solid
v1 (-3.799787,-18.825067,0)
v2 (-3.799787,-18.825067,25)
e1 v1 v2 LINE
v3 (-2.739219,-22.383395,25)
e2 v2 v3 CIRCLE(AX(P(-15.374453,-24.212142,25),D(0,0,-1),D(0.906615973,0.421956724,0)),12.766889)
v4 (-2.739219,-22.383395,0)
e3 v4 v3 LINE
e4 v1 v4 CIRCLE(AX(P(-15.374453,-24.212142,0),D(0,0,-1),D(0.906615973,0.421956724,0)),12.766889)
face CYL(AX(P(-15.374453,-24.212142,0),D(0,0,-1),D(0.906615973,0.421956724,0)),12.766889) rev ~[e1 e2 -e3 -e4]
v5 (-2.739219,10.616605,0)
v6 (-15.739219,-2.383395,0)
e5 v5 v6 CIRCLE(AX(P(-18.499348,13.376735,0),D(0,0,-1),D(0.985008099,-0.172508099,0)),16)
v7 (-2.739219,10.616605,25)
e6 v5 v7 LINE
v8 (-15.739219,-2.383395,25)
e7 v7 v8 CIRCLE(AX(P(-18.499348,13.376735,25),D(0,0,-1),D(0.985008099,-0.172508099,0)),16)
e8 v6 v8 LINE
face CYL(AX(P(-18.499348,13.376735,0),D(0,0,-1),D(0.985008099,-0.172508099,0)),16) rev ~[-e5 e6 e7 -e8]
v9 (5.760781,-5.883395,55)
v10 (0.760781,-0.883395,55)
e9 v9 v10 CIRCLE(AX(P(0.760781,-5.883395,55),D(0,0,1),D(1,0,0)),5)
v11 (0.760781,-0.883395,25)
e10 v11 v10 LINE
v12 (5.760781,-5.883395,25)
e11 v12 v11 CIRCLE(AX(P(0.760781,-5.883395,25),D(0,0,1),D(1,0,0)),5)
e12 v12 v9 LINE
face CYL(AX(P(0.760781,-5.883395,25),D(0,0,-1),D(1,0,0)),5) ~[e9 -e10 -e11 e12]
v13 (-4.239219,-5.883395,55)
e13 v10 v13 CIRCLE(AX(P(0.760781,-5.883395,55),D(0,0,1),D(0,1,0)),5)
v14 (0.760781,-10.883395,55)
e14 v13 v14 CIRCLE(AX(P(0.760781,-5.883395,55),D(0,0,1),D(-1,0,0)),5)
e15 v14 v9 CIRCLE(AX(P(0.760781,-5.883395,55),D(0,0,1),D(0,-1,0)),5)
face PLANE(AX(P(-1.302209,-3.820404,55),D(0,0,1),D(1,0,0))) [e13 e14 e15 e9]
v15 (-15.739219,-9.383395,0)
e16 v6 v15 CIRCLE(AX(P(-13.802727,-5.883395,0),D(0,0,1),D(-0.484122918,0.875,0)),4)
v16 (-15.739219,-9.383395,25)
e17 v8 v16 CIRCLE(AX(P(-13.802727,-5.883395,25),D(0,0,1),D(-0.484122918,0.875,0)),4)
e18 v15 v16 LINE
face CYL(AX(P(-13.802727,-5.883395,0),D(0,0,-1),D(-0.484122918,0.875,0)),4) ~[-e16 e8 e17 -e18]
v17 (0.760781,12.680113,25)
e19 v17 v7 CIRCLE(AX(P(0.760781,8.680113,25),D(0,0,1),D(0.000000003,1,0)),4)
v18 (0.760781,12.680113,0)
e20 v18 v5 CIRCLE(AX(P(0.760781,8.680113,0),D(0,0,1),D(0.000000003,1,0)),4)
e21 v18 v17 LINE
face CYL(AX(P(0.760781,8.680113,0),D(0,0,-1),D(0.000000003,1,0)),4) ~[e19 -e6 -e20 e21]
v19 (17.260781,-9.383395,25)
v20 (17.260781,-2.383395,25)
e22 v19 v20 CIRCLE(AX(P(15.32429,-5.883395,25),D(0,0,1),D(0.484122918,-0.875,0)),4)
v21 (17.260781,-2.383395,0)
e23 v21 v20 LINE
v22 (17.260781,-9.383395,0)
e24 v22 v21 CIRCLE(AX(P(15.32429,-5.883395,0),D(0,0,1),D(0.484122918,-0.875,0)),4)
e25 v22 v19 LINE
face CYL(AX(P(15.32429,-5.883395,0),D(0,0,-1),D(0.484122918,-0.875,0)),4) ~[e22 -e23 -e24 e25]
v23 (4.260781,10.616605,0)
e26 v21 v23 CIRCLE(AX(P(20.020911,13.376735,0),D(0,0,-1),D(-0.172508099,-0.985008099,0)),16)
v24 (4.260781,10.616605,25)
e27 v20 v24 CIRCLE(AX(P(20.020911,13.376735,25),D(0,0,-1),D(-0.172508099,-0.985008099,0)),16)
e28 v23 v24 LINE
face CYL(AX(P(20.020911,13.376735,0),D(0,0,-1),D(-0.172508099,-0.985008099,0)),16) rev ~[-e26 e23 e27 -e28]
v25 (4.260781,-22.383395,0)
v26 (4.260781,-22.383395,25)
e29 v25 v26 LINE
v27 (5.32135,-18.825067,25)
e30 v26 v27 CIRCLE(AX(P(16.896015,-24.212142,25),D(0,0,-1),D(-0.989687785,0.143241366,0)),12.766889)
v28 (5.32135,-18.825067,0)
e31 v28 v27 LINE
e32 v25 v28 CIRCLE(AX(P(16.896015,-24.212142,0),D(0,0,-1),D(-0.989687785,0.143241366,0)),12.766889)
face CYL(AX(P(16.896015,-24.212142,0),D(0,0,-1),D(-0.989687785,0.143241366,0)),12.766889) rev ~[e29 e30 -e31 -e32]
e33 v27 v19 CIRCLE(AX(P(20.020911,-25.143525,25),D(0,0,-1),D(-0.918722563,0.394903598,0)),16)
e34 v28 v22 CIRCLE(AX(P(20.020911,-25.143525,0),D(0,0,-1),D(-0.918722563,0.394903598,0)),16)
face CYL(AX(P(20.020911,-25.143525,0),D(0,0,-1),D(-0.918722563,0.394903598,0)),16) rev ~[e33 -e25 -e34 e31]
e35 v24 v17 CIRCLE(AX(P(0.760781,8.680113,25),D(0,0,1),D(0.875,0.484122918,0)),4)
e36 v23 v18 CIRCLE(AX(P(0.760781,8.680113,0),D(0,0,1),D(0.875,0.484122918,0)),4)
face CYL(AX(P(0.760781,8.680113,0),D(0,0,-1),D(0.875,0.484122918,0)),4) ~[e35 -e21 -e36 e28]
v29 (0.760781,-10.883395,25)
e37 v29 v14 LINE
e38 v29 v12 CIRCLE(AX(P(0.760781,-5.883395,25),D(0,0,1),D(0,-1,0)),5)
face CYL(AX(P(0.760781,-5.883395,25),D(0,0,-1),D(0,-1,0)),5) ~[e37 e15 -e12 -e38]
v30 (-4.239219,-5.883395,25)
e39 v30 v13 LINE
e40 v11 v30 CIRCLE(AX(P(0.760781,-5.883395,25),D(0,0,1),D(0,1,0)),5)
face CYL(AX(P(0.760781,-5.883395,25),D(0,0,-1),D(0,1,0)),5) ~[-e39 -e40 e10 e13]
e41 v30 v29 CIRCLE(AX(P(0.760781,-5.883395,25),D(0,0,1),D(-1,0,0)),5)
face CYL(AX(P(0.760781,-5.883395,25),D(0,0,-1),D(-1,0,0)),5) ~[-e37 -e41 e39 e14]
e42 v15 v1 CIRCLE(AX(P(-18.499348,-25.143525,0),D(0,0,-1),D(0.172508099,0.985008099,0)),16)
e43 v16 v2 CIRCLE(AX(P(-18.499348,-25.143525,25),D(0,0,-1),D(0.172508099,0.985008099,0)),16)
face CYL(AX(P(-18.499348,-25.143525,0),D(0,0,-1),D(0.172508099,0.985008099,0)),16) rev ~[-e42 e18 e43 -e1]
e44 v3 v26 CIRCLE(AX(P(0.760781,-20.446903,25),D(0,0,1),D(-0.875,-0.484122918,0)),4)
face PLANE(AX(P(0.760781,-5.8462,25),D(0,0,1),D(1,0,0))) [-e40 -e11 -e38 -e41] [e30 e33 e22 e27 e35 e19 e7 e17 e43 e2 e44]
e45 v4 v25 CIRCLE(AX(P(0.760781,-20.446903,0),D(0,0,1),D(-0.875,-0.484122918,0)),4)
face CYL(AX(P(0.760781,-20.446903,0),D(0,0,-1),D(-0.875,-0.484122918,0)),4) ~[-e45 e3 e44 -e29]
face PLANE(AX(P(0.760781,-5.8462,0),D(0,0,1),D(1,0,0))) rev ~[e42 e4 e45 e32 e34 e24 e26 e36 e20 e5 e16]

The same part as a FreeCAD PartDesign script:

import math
import FreeCAD as App
import Part
import Sketcher
from FreeCAD import Vector
Q = App.Units.Quantity

doc = App.newDocument("Part")
body = doc.addObject("PartDesign::Body", "Body")

sketch1 = body.newObject("Sketcher::SketchObject", "Sketch")
sketch1.AttachmentSupport = (doc.getObject("XY_Plane"), [""])
sketch1.MapMode = "FlatFace"
sketch1.addGeometry([
    Part.ArcOfCircle(Part.Circle(Vector(20, 13.4, 0), Vector(0, 0, 1), 16), math.radians(-170), math.radians(-100)),
    Part.ArcOfCircle(Part.Circle(Vector(0.8, 8.7, 0), Vector(0, 0, 1), 4), math.radians(29), math.radians(90)),
    Part.ArcOfCircle(Part.Circle(Vector(0.8, 8.7, 0), Vector(0, 0, 1), 4), math.radians(90), math.radians(151)),
    Part.ArcOfCircle(Part.Circle(Vector(-18.5, 13.4, 0), Vector(0, 0, 1), 16), math.radians(-80), math.radians(-10)),
    Part.ArcOfCircle(Part.Circle(Vector(-13.8, -5.9, 0), Vector(0, 0, 1), 4), math.radians(119), math.radians(241)),
    Part.ArcOfCircle(Part.Circle(Vector(-18.5, -25.1, 0), Vector(0, 0, 1), 16), math.radians(23), math.radians(80)),
    Part.ArcOfCircle(Part.Circle(Vector(-15.4, -24.2, 0), Vector(0, 0, 1), 12.8), math.radians(8.24), math.radians(24.96)),
    Part.ArcOfCircle(Part.Circle(Vector(0.8, -20.4, 0), Vector(0, 0, 1), 4), math.radians(-151), math.radians(-29)),
    Part.ArcOfCircle(Part.Circle(Vector(16.9, -24.2, 0), Vector(0, 0, 1), 12.8), math.radians(155.04), math.radians(171.76)),
    Part.ArcOfCircle(Part.Circle(Vector(20, -25.1, 0), Vector(0, 0, 1), 16), math.radians(100), math.radians(157)),
    Part.ArcOfCircle(Part.Circle(Vector(15.3, -5.9, 0), Vector(0, 0, 1), 4), math.radians(-61), math.radians(61)),
], False)
sketch1.addConstraint([
    Sketcher.Constraint("Coincident", 0, 1, 1, 1),
    Sketcher.Constraint("Tangent", 1, 2, 2, 1),
    Sketcher.Constraint("Coincident", 2, 2, 3, 2),
    Sketcher.Constraint("Coincident", 3, 1, 4, 1),
    Sketcher.Constraint("Coincident", 4, 2, 5, 2),
    Sketcher.Constraint("Coincident", 5, 1, 6, 2),
    Sketcher.Constraint("Coincident", 6, 1, 7, 1),
    Sketcher.Constraint("Coincident", 7, 2, 8, 2),
    Sketcher.Constraint("Coincident", 8, 1, 9, 2),
    Sketcher.Constraint("Coincident", 9, 1, 10, 1),
    Sketcher.Constraint("Coincident", 10, 2, 0, 2),
    Sketcher.Constraint("Equal", 1, 2),
    Sketcher.Constraint("Equal", 0, 3),
    Sketcher.Constraint("Equal", 2, 4),
    Sketcher.Constraint("Equal", 3, 5),
    Sketcher.Constraint("Equal", 4, 7),
    Sketcher.Constraint("Equal", 6, 8),
    Sketcher.Constraint("Equal", 5, 9),
    Sketcher.Constraint("Equal", 7, 10),
    Sketcher.Constraint("Horizontal", 0, 3, 3, 3),
    Sketcher.Constraint("Horizontal", 6, 3, 8, 3),
    Sketcher.Constraint("Horizontal", 5, 3, 9, 3),
    Sketcher.Constraint("Horizontal", 4, 3, 10, 3),
    Sketcher.Constraint("Horizontal", 0, 1, 2, 2),
    Sketcher.Constraint("Horizontal", 6, 1, 7, 2),
    Sketcher.Constraint("Horizontal", 5, 1, 8, 1),
    Sketcher.Constraint("Horizontal", 4, 2, 9, 1),
    Sketcher.Constraint("Horizontal", 3, 1, 10, 2),
    Sketcher.Constraint("Vertical", 3, 3, 5, 3),
    Sketcher.Constraint("Vertical", 7, 3, 1, 2),
    Sketcher.Constraint("Vertical", 3, 1, 4, 2),
    Sketcher.Constraint("Vertical", 2, 2, 6, 1),
    Sketcher.Constraint("Radius", 0, Q("16 mm")),
    Sketcher.Constraint("Radius", 1, Q("4 mm")),
    Sketcher.Constraint("DistanceX", 2, 2, 0, 1, Q("7 mm")),
    Sketcher.Constraint("DistanceX", 3, 1, 2, 2, Q("13 mm")),
    Sketcher.Constraint("DistanceY", 3, 1, 2, 2, Q("13 mm")),
    Sketcher.Constraint("DistanceY", 4, 2, 3, 1, Q("7 mm")),
    Sketcher.Constraint("DistanceY", 6, 1, 4, 2, Q("13 mm")),
    Sketcher.Constraint("Radius", 6, Q("12.766889 mm")),
    Sketcher.Constraint("DistanceX", -1, 1, 0, 3, Q("20.020911 mm")),
    Sketcher.Constraint("DistanceY", 6, 3, -1, 1, Q("24.212142 mm")),
    Sketcher.Constraint("DistanceX", -1, 1, 8, 1, Q("5.32135 mm")),
])
pad1 = body.newObject("PartDesign::Pad", "Pad")
pad1.Profile = sketch1
pad1.Length = 25

sketch2 = body.newObject("Sketcher::SketchObject", "Sketch001")
sketch2.AttachmentSupport = (doc.getObject("XY_Plane"), [""])
sketch2.MapMode = "FlatFace"
sketch2.AttachmentOffset = App.Placement(Vector(0, 0, 25), App.Rotation())
sketch2.addGeometry([
    Part.ArcOfCircle(Part.Circle(Vector(1, -6, 0), Vector(0, 0, 1), 5), math.radians(90), math.radians(180)),
    Part.ArcOfCircle(Part.Circle(Vector(1, -6, 0), Vector(0, 0, 1), 5), math.radians(180), math.radians(270)),
    Part.ArcOfCircle(Part.Circle(Vector(1, -6, 0), Vector(0, 0, 1), 5), math.radians(-90), math.radians(0)),
    Part.ArcOfCircle(Part.Circle(Vector(1, -6, 0), Vector(0, 0, 1), 5), math.radians(0), math.radians(90)),
], False)
sketch2.addConstraint([
    Sketcher.Constraint("Tangent", 0, 2, 1, 1),
    Sketcher.Constraint("Tangent", 1, 2, 2, 1),
    Sketcher.Constraint("Tangent", 2, 2, 3, 1),
    Sketcher.Constraint("Tangent", 3, 2, 0, 1),
    Sketcher.Constraint("Equal", 0, 1),
    Sketcher.Constraint("Horizontal", 3, 3, 0, 2),
    Sketcher.Constraint("Horizontal", 0, 2, 2, 2),
    Sketcher.Constraint("Vertical", 3, 3, 1, 2),
    Sketcher.Constraint("Vertical", 1, 2, 3, 2),
    Sketcher.Constraint("Radius", 0, Q("5 mm")),
    Sketcher.Constraint("DistanceX", -1, 1, 0, 3, Q("0.760781 mm")),
    Sketcher.Constraint("DistanceY", 0, 3, -1, 1, Q("5.883395 mm")),
])
pad2 = body.newObject("PartDesign::Pad", "Pad001")
pad2.Profile = sketch2
pad2.Length = 30

doc.recompute()
